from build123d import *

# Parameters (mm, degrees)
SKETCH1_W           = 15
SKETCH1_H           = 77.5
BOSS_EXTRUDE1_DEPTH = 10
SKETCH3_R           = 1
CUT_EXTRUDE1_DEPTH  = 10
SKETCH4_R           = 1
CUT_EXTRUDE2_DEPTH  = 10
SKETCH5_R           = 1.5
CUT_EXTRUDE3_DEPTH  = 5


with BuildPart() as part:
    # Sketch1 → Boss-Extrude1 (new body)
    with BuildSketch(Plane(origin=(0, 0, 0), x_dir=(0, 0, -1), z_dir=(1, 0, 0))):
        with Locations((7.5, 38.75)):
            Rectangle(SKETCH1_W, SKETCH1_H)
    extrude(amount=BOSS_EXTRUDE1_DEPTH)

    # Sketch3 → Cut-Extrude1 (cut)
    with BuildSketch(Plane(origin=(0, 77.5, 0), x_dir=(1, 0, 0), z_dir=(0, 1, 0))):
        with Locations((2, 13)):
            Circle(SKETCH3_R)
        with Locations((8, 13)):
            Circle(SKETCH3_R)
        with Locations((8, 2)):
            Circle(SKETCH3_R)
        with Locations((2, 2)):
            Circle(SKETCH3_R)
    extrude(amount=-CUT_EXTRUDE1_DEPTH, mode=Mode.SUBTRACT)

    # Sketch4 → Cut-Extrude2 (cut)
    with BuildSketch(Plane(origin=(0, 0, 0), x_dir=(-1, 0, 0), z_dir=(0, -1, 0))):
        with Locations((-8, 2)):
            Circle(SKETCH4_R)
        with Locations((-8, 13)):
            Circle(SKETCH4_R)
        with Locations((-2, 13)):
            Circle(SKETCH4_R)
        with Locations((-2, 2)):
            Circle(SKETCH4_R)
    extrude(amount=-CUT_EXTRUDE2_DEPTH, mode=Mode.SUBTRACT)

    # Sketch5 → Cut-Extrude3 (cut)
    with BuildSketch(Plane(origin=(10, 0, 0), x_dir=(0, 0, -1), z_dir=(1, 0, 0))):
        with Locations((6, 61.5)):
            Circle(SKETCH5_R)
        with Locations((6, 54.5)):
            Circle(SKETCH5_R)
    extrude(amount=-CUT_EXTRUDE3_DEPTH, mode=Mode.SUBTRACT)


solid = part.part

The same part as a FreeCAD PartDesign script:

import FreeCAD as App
import Part
import Sketcher
Q = App.Units.Quantity


def add_polygon(sketch, points):
    """Adds a closed chain of lines whose ends are joined by coincident constraints."""
    first, n = sketch.GeometryCount, len(points)
    for a, b in zip(points, points[1:] + points[:1]):
        sketch.addGeometry(Part.LineSegment(App.Vector(*a, 0), App.Vector(*b, 0)), False)
    for i in range(n):
        sketch.addConstraint(Sketcher.Constraint("Coincident", first + i, 2, first + (i + 1) % n, 1))

doc = App.newDocument("Part")
body = doc.addObject("PartDesign::Body", "Body")

# Sketch on YZ plane
sketch1 = body.newObject("Sketcher::SketchObject", "Sketch")
sketch1.AttachmentSupport = (doc.getObject("YZ_Plane"), [""])
sketch1.MapMode = "FlatFace"
add_polygon(sketch1, [(78, 0), (0, 0), (0, -15), (78, -15)])  # lines 0-3
sketch1.addConstraint(Sketcher.Constraint("Horizontal", 0))
sketch1.addConstraint(Sketcher.Constraint("Vertical", 1))
sketch1.addConstraint(Sketcher.Constraint("Horizontal", 2))
sketch1.addConstraint(Sketcher.Constraint("Vertical", 3))
sketch1.addConstraint(Sketcher.Constraint("Coincident", 0, 2, -1, 1))
sketch1.addConstraint(Sketcher.Constraint("DistanceY", 1, 2, 1, 1, Q("15 mm")))
sketch1.addConstraint(Sketcher.Constraint("DistanceX", 0, 2, 0, 1, Q("77.5 mm")))
pad1 = body.newObject("PartDesign::Pad", "Pad")
pad1.Profile = sketch1
pad1.Length = 10

# Sketch on XZ plane
sketch2 = body.newObject("Sketcher::SketchObject", "Sketch001")
sketch2.AttachmentSupport = (doc.getObject("XZ_Plane"), [""])
sketch2.MapMode = "FlatFace"
sketch2.AttachmentOffset = App.Placement(App.Vector(0, 0, -77.5), App.Rotation())
sketch2.addGeometry(Part.Circle(App.Vector(2, -13, 0), App.Vector(0, 0, 1), 1), False)
sketch2.addGeometry(Part.Circle(App.Vector(8, -13, 0), App.Vector(0, 0, 1), 1), False)
sketch2.addGeometry(Part.Circle(App.Vector(8, -2, 0), App.Vector(0, 0, 1), 1), False)
sketch2.addGeometry(Part.Circle(App.Vector(2, -2, 0), App.Vector(0, 0, 1), 1), False)
sketch2.addConstraint(Sketcher.Constraint("Equal", 0, 1))
sketch2.addConstraint(Sketcher.Constraint("Equal", 1, 2))
sketch2.addConstraint(Sketcher.Constraint("Equal", 2, 3))
sketch2.addConstraint(Sketcher.Constraint("Horizontal", 0, 3, 1, 3))
sketch2.addConstraint(Sketcher.Constraint("Horizontal", 2, 3, 3, 3))
sketch2.addConstraint(Sketcher.Constraint("Vertical", 1, 3, 2, 3))
sketch2.addConstraint(Sketcher.Constraint("Vertical", 0, 3, 3, 3))
sketch2.addConstraint(Sketcher.Constraint("Diameter", 0, Q("2 mm")))
sketch2.addConstraint(Sketcher.Constraint("DistanceX", -1, 1, 0, 3, Q("2 mm")))
sketch2.addConstraint(Sketcher.Constraint("DistanceY", 0, 3, -1, 1, Q("13 mm")))
sketch2.addConstraint(Sketcher.Constraint("DistanceX", -1, 1, 1, 3, Q("8 mm")))
sketch2.addConstraint(Sketcher.Constraint("DistanceY", 2, 3, -1, 1, Q("2 mm")))
pocket1 = body.newObject("PartDesign::Pocket", "Pocket")
pocket1.Profile = sketch2
pocket1.Length = 10
pocket1.Reversed = True

# Sketch on XZ plane
sketch3 = body.newObject("Sketcher::SketchObject", "Sketch002")
sketch3.AttachmentSupport = (doc.getObject("XZ_Plane"), [""])
sketch3.MapMode = "FlatFace"
sketch3.addGeometry(Part.Circle(App.Vector(8, -2, 0), App.Vector(0, 0, 1), 1), False)
sketch3.addGeometry(Part.Circle(App.Vector(8, -13, 0), App.Vector(0, 0, 1), 1), False)
sketch3.addGeometry(Part.Circle(App.Vector(2, -13, 0), App.Vector(0, 0, 1), 1), False)
sketch3.addGeometry(Part.Circle(App.Vector(2, -2, 0), App.Vector(0, 0, 1), 1), False)
sketch3.addConstraint(Sketcher.Constraint("Equal", 0, 1))
sketch3.addConstraint(Sketcher.Constraint("Equal", 1, 2))
sketch3.addConstraint(Sketcher.Constraint("Equal", 2, 3))
sketch3.addConstraint(Sketcher.Constraint("Horizontal", 1, 3, 2, 3))
sketch3.addConstraint(Sketcher.Constraint("Horizontal", 0, 3, 3, 3))
sketch3.addConstraint(Sketcher.Constraint("Vertical", 0, 3, 1, 3))
sketch3.addConstraint(Sketcher.Constraint("Vertical", 2, 3, 3, 3))
sketch3.addConstraint(Sketcher.Constraint("Diameter", 0, Q("2 mm")))
sketch3.addConstraint(Sketcher.Constraint("DistanceX", -1, 1, 0, 3, Q("8 mm")))
sketch3.addConstraint(Sketcher.Constraint("DistanceY", 0, 3, -1, 1, Q("2 mm")))
sketch3.addConstraint(Sketcher.Constraint("DistanceY", 1, 3, -1, 1, Q("13 mm")))
sketch3.addConstraint(Sketcher.Constraint("DistanceX", -1, 1, 2, 3, Q("2 mm")))
pocket2 = body.newObject("PartDesign::Pocket", "Pocket001")
pocket2.Profile = sketch3
pocket2.Length = 10

# Sketch on YZ plane
sketch4 = body.newObject("Sketcher::SketchObject", "Sketch003")
sketch4.AttachmentSupport = (doc.getObject("YZ_Plane"), [""])
sketch4.MapMode = "FlatFace"
sketch4.AttachmentOffset = App.Placement(App.Vector(0, 0, 10), App.Rotation())
sketch4.addGeometry(Part.Circle(App.Vector(61.5, -6, 0), App.Vector(0, 0, 1), 1.5), False)
sketch4.addGeometry(Part.Circle(App.Vector(54.5, -6, 0), App.Vector(0, 0, 1), 1.5), False)
sketch4.addConstraint(Sketcher.Constraint("Equal", 0, 1))
sketch4.addConstraint(Sketcher.Constraint("Horizontal", 0, 3, 1, 3))
sketch4.addConstraint(Sketcher.Constraint("Diameter", 0, Q("3 mm")))
sketch4.addConstraint(Sketcher.Constraint("DistanceY", 0, 3, -1, 1, Q("6 mm")))
sketch4.addConstraint(Sketcher.Constraint("DistanceX", 1, 3, 0, 3, Q("7 mm")))
sketch4.addConstraint(Sketcher.Constraint("DistanceX", -1, 1, 0, 3, Q("61.5 mm")))
pocket3 = body.newObject("PartDesign::Pocket", "Pocket002")
pocket3.Profile = sketch4
pocket3.Length = 5

doc.recompute()
